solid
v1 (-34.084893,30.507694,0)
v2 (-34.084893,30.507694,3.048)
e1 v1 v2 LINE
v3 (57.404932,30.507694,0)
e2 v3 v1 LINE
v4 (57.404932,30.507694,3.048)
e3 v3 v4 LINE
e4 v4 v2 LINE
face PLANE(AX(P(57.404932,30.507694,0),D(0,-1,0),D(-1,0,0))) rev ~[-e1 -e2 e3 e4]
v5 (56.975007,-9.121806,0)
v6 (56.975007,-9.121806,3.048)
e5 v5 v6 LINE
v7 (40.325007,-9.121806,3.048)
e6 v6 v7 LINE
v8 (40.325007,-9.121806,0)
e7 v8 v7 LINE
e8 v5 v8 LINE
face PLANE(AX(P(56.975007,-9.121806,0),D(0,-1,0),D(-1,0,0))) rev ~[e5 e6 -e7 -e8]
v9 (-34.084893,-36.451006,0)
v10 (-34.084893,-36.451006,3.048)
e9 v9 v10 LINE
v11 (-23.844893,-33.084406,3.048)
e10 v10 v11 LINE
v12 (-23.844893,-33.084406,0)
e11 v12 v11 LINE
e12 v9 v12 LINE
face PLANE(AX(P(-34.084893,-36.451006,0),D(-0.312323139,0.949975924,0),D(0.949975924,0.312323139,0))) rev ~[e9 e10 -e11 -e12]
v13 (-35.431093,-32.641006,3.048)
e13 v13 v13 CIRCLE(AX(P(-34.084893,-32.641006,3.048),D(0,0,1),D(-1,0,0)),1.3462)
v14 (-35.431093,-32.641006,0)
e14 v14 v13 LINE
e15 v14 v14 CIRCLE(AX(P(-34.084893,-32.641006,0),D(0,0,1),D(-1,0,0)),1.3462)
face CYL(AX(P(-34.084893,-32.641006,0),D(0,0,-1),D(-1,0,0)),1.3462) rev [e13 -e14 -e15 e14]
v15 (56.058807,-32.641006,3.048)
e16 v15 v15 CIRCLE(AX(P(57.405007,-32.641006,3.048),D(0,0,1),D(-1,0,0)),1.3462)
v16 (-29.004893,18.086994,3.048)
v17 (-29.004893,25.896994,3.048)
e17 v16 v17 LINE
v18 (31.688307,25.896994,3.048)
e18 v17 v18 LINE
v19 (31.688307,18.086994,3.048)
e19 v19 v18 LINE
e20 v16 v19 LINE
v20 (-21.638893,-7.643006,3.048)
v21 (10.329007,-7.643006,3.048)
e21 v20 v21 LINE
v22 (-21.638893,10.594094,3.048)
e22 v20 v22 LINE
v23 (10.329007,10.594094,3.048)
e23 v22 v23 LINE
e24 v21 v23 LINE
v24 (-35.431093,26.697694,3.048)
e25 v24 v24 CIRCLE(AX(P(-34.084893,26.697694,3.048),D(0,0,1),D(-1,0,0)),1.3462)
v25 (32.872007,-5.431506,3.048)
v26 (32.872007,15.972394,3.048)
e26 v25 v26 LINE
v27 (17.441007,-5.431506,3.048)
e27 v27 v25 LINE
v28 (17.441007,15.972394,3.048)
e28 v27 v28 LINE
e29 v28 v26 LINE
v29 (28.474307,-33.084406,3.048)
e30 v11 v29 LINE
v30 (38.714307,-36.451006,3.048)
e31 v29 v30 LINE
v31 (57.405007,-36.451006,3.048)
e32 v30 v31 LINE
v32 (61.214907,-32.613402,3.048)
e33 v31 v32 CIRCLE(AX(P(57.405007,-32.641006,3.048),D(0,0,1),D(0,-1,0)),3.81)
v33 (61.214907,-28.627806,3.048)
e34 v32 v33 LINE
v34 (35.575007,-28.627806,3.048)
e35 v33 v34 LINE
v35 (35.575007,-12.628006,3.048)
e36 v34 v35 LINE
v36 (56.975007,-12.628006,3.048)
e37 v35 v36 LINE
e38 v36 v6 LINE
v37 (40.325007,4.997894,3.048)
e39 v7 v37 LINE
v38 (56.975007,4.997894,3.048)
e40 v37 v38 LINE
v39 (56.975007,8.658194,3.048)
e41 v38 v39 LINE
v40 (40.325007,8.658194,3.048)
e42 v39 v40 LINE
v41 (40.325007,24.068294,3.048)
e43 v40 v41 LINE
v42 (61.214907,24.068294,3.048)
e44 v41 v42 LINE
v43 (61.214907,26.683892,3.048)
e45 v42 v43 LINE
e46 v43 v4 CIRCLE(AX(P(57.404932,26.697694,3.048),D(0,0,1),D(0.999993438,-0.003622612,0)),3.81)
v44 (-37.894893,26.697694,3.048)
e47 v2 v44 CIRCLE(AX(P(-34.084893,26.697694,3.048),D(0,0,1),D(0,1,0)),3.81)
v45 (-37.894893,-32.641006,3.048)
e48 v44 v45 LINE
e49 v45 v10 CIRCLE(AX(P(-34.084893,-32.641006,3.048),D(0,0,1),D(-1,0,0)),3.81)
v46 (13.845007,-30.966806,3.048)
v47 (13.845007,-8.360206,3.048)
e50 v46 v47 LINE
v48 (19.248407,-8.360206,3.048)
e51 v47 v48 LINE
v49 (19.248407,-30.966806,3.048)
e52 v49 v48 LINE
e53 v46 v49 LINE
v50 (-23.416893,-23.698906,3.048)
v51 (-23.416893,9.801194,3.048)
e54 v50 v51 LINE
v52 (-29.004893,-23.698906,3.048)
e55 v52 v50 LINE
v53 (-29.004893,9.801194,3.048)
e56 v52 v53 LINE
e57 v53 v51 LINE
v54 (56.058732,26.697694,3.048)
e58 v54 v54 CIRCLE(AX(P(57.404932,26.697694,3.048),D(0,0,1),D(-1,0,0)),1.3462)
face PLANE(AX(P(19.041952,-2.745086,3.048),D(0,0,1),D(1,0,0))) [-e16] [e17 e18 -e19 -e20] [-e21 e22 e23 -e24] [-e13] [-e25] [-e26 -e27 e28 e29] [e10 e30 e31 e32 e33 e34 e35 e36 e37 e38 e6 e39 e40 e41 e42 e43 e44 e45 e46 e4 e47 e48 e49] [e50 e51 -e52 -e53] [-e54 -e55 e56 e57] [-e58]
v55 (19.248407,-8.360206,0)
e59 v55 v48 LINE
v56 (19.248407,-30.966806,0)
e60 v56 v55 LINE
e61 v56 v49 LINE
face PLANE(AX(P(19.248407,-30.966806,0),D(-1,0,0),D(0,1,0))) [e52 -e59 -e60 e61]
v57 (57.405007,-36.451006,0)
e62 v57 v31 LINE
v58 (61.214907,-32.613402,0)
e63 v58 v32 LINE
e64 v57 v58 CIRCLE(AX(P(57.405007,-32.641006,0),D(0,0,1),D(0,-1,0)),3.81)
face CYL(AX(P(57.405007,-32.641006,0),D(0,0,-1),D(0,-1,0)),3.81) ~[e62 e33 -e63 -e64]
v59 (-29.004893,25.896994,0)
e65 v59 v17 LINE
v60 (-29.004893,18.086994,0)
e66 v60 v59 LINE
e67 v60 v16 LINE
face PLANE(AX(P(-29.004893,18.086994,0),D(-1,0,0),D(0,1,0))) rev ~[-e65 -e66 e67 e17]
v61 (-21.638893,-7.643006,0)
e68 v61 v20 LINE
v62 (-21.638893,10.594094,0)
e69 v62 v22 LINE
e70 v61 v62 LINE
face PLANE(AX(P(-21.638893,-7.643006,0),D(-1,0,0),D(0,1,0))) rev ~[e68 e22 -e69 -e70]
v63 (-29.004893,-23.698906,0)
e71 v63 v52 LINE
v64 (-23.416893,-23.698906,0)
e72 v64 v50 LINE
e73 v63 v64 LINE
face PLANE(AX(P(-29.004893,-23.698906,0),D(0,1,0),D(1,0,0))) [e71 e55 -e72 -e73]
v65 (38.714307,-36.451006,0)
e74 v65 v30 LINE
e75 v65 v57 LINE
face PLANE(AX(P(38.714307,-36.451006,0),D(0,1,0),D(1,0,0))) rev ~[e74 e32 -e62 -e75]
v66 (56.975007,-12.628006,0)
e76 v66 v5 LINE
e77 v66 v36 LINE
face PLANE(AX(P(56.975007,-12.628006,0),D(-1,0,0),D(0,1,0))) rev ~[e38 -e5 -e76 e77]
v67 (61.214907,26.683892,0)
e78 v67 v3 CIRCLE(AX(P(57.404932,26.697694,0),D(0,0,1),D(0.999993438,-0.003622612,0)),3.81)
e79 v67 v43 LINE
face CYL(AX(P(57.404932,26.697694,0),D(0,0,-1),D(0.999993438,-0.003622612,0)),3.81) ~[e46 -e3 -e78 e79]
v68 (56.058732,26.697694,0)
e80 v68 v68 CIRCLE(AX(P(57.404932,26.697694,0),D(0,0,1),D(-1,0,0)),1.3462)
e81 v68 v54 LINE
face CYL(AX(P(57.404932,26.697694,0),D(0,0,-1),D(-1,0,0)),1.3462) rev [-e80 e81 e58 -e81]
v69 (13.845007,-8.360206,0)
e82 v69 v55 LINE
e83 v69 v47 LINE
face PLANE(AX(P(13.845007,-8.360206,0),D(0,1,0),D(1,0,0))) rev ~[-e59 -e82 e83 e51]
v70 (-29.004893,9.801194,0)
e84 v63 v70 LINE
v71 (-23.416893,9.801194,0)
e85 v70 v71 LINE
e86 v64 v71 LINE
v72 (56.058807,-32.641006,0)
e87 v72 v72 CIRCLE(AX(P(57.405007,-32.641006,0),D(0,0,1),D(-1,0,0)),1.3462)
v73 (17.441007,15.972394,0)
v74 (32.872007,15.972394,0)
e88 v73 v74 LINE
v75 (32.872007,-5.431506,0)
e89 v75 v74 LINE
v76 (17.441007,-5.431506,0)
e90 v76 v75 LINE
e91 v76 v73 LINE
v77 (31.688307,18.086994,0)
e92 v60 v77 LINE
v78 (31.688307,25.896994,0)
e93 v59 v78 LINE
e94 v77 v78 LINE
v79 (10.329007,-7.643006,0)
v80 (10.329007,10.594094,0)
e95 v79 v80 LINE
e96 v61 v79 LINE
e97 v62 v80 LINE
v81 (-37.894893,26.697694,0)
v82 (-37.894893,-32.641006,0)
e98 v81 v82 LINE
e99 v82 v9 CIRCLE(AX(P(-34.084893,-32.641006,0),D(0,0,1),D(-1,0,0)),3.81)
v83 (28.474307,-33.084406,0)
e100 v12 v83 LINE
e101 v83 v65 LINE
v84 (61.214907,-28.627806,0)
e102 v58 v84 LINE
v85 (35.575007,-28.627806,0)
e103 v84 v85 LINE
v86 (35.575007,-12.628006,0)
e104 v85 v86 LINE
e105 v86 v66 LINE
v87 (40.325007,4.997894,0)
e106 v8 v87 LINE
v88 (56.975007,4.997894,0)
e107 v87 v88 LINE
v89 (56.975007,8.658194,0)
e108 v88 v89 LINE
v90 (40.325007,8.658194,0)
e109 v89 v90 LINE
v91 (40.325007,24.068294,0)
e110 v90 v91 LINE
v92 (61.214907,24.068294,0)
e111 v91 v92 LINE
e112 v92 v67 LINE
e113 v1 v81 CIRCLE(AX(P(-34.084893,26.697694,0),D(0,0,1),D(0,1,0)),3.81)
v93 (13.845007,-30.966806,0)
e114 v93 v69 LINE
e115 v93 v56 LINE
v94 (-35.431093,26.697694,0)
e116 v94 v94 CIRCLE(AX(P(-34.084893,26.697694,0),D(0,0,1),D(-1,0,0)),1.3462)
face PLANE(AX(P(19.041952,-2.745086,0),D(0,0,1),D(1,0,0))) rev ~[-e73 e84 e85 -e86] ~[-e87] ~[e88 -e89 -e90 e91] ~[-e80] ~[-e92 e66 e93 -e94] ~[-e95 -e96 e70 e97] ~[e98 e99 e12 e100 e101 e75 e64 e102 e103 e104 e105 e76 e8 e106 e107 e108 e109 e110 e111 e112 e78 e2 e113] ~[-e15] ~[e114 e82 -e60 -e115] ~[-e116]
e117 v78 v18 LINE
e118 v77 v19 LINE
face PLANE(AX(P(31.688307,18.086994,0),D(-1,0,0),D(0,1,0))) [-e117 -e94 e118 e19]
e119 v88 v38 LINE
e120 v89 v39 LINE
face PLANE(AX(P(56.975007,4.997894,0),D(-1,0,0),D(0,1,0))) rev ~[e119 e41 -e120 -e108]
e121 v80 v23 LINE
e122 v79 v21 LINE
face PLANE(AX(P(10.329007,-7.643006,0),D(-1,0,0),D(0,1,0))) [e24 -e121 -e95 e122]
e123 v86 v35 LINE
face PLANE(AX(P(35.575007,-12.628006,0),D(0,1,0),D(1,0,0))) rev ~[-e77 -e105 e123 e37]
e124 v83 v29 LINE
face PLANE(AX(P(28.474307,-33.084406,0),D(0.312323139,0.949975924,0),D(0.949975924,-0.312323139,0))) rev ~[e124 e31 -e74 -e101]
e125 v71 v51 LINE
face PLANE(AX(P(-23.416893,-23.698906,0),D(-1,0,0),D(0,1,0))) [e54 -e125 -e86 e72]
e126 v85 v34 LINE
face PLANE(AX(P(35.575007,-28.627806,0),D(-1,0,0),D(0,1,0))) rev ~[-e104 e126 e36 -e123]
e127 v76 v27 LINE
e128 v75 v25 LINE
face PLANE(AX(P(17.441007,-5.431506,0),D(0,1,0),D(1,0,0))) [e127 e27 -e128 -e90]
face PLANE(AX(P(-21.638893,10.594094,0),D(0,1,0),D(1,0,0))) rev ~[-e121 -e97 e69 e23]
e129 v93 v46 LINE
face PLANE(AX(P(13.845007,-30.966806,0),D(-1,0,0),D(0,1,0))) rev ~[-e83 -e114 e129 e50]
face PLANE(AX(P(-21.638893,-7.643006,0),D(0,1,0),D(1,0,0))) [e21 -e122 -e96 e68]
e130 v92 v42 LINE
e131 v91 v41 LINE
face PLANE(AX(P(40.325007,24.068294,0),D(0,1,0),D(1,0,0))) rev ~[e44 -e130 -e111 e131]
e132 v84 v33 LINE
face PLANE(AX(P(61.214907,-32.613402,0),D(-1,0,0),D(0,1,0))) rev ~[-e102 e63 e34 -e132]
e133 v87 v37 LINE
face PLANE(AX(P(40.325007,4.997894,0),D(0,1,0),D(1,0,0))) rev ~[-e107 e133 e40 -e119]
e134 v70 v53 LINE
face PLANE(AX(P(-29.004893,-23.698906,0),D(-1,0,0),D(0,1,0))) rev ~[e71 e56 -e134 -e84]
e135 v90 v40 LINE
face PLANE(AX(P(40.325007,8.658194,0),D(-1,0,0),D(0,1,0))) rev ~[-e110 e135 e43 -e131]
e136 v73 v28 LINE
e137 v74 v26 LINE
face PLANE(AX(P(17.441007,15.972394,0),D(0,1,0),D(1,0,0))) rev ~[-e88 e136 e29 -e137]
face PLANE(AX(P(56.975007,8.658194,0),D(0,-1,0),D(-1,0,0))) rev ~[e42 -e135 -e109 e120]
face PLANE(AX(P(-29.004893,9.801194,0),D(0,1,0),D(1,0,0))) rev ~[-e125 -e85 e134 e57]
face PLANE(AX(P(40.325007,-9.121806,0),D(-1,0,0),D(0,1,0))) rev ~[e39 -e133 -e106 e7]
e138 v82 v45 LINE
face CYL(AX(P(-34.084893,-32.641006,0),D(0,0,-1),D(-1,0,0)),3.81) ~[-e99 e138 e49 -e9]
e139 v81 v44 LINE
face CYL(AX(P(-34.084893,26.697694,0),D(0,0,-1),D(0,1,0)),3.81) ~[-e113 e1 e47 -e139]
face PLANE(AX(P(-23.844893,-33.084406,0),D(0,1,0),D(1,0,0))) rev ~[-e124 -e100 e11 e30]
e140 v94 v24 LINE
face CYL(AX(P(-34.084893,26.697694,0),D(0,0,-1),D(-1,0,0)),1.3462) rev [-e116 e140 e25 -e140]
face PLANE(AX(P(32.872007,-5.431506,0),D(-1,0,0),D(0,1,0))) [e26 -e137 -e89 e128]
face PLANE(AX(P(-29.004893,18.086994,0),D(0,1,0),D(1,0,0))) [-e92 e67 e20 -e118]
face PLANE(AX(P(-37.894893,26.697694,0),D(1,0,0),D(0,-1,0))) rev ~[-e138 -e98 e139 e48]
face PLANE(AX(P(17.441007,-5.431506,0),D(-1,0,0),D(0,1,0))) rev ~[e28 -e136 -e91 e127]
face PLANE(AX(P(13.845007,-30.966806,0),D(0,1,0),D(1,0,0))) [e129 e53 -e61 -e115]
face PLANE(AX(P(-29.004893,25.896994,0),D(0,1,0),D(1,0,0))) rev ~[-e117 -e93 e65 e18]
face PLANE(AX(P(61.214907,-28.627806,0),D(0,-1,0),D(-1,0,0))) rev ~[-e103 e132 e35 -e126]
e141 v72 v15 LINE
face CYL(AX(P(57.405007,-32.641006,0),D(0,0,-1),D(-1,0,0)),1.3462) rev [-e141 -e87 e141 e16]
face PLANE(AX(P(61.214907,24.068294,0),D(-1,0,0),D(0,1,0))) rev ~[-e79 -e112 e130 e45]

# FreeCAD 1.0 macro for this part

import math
import FreeCAD as App
import Part
import Sketcher
from FreeCAD import Vector
Q = App.Units.Quantity

doc = App.newDocument("Part")
body = doc.addObject("PartDesign::Body", "Body")

# Sketch on XY plane
sketch1 = body.newObject("Sketcher::SketchObject", "Sketch")
sketch1.AttachmentSupport = (doc.getObject("XY_Plane"), [""])
sketch1.MapMode = "FlatFace"
sketch1.addGeometry([
    Part.LineSegment(Vector(40.325007, 24.068294, 0), Vector(61.214907, 24.068294, 0)),  # 0
    Part.LineSegment(Vector(61.214907, 24.068294, 0), Vector(61.214907, 26.683892, 0)),  # 1
    Part.ArcOfCircle(Part.Circle(Vector(57.404932, 26.697694, 0), Vector(0, 0, 1), 3.81), math.radians(-0.207561), math.radians(90)),  # 2
    Part.LineSegment(Vector(57.404932, 30.507694, 0), Vector(-34.084893, 30.507694, 0)),  # 3
    Part.ArcOfCircle(Part.Circle(Vector(-34.084893, 26.697694, 0), Vector(0, 0, 1), 3.81), math.radians(90), math.radians(180)),  # 4
    Part.LineSegment(Vector(-37.894893, 26.697694, 0), Vector(-37.894893, -32.641006, 0)),  # 5
    Part.ArcOfCircle(Part.Circle(Vector(-34.084893, -32.641006, 0), Vector(0, 0, 1), 3.81), math.radians(-180), math.radians(-90)),  # 6
    Part.LineSegment(Vector(-34.084893, -36.451006, 0), Vector(-23.844893, -33.084406, 0)),  # 7
    Part.LineSegment(Vector(-23.844893, -33.084406, 0), Vector(28.474307, -33.084406, 0)),  # 8
    Part.LineSegment(Vector(28.474307, -33.084406, 0), Vector(38.714307, -36.451006, 0)),  # 9
    Part.LineSegment(Vector(38.714307, -36.451006, 0), Vector(57.405007, -36.451006, 0)),  # 10
    Part.ArcOfCircle(Part.Circle(Vector(57.405007, -32.641006, 0), Vector(0, 0, 1), 3.81), math.radians(-90), math.radians(0.415122)),  # 11
    Part.LineSegment(Vector(61.214907, -32.613402, 0), Vector(61.214907, -28.627806, 0)),  # 12
    Part.LineSegment(Vector(61.214907, -28.627806, 0), Vector(35.575007, -28.627806, 0)),  # 13
    Part.LineSegment(Vector(35.575007, -28.627806, 0), Vector(35.575007, -12.628006, 0)),  # 14
    Part.LineSegment(Vector(35.575007, -12.628006, 0), Vector(56.975007, -12.628006, 0)),  # 15
    Part.LineSegment(Vector(56.975007, -12.628006, 0), Vector(56.975007, -9.121806, 0)),  # 16
    Part.LineSegment(Vector(56.975007, -9.121806, 0), Vector(40.325007, -9.121806, 0)),  # 17
    Part.LineSegment(Vector(40.325007, -9.121806, 0), Vector(40.325007, 4.997894, 0)),  # 18
    Part.LineSegment(Vector(40.325007, 4.997894, 0), Vector(56.975007, 4.997894, 0)),  # 19
    Part.LineSegment(Vector(56.975007, 4.997894, 0), Vector(56.975007, 8.658194, 0)),  # 20
    Part.LineSegment(Vector(56.975007, 8.658194, 0), Vector(40.325007, 8.658194, 0)),  # 21
    Part.LineSegment(Vector(40.325007, 8.658194, 0), Vector(40.325007, 24.068294, 0)),  # 22
    Part.Circle(Vector(-34.084893, -32.641006, 0), Vector(0, 0, 1), 1.3462),  # 23
    Part.LineSegment(Vector(-23.416893, -23.698906, 0), Vector(-29.004893, -23.698906, 0)),  # 24
    Part.LineSegment(Vector(-29.004893, -23.698906, 0), Vector(-29.004893, 9.801194, 0)),  # 25
    Part.LineSegment(Vector(-29.004893, 9.801194, 0), Vector(-23.416893, 9.801194, 0)),  # 26
    Part.LineSegment(Vector(-23.416893, 9.801194, 0), Vector(-23.416893, -23.698906, 0)),  # 27
    Part.LineSegment(Vector(19.248407, -30.966806, 0), Vector(13.845007, -30.966806, 0)),  # 28
    Part.LineSegment(Vector(13.845007, -30.966806, 0), Vector(13.845007, -8.360206, 0)),  # 29
    Part.LineSegment(Vector(13.845007, -8.360206, 0), Vector(19.248407, -8.360206, 0)),  # 30
    Part.LineSegment(Vector(19.248407, -8.360206, 0), Vector(19.248407, -30.966806, 0)),  # 31
    Part.Circle(Vector(57.405007, -32.641006, 0), Vector(0, 0, 1), 1.3462),  # 32
    Part.LineSegment(Vector(10.329007, -7.643006, 0), Vector(-21.638893, -7.643006, 0)),  # 33
    Part.LineSegment(Vector(-21.638893, -7.643006, 0), Vector(-21.638893, 10.594094, 0)),  # 34
    Part.LineSegment(Vector(-21.638893, 10.594094, 0), Vector(10.329007, 10.594094, 0)),  # 35
    Part.LineSegment(Vector(10.329007, 10.594094, 0), Vector(10.329007, -7.643006, 0)),  # 36
    Part.Circle(Vector(-34.084893, 26.697694, 0), Vector(0, 0, 1), 1.3462),  # 37
    Part.LineSegment(Vector(31.688307, 18.086994, 0), Vector(-29.004893, 18.086994, 0)),  # 38
    Part.LineSegment(Vector(-29.004893, 18.086994, 0), Vector(-29.004893, 25.896994, 0)),  # 39
    Part.LineSegment(Vector(-29.004893, 25.896994, 0), Vector(31.688307, 25.896994, 0)),  # 40
    Part.LineSegment(Vector(31.688307, 25.896994, 0), Vector(31.688307, 18.086994, 0)),  # 41
    Part.LineSegment(Vector(32.872007, -5.431506, 0), Vector(17.441007, -5.431506, 0)),  # 42
    Part.LineSegment(Vector(17.441007, -5.431506, 0), Vector(17.441007, 15.972394, 0)),  # 43
    Part.LineSegment(Vector(17.441007, 15.972394, 0), Vector(32.872007, 15.972394, 0)),  # 44
    Part.LineSegment(Vector(32.872007, 15.972394, 0), Vector(32.872007, -5.431506, 0)),  # 45
    Part.Circle(Vector(57.404932, 26.697694, 0), Vector(0, 0, 1), 1.3462),  # 46
], False)
sketch1.addConstraint([
    Sketcher.Constraint("Coincident", 0, 2, 1, 1),
    Sketcher.Constraint("Coincident", 1, 2, 2, 1),
    Sketcher.Constraint("Tangent", 2, 2, 3, 1),
    Sketcher.Constraint("Tangent", 3, 2, 4, 1),
    Sketcher.Constraint("Tangent", 4, 2, 5, 1),
    Sketcher.Constraint("Tangent", 5, 2, 6, 1),
    Sketcher.Constraint("Coincident", 6, 2, 7, 1),
    Sketcher.Constraint("Coincident", 7, 2, 8, 1),
    Sketcher.Constraint("Coincident", 8, 2, 9, 1),
    Sketcher.Constraint("Coincident", 9, 2, 10, 1),
    Sketcher.Constraint("Tangent", 10, 2, 11, 1),
    Sketcher.Constraint("Coincident", 11, 2, 12, 1),
    Sketcher.Constraint("Coincident", 12, 2, 13, 1),
    Sketcher.Constraint("Coincident", 13, 2, 14, 1),
    Sketcher.Constraint("Coincident", 14, 2, 15, 1),
    Sketcher.Constraint("Coincident", 15, 2, 16, 1),
    Sketcher.Constraint("Coincident", 16, 2, 17, 1),
    Sketcher.Constraint("Coincident", 17, 2, 18, 1),
    Sketcher.Constraint("Coincident", 18, 2, 19, 1),
    Sketcher.Constraint("Coincident", 19, 2, 20, 1),
    Sketcher.Constraint("Coincident", 20, 2, 21, 1),
    Sketcher.Constraint("Coincident", 21, 2, 22, 1),
    Sketcher.Constraint("Coincident", 22, 2, 0, 1),
    Sketcher.Constraint("Coincident", 24, 2, 25, 1),
    Sketcher.Constraint("Coincident", 25, 2, 26, 1),
    Sketcher.Constraint("Coincident", 26, 2, 27, 1),
    Sketcher.Constraint("Coincident", 27, 2, 24, 1),
    Sketcher.Constraint("Coincident", 28, 2, 29, 1),
    Sketcher.Constraint("Coincident", 29, 2, 30, 1),
    Sketcher.Constraint("Coincident", 30, 2, 31, 1),
    Sketcher.Constraint("Coincident", 31, 2, 28, 1),
    Sketcher.Constraint("Coincident", 33, 2, 34, 1),
    Sketcher.Constraint("Coincident", 34, 2, 35, 1),
    Sketcher.Constraint("Coincident", 35, 2, 36, 1),
    Sketcher.Constraint("Coincident", 36, 2, 33, 1),
    Sketcher.Constraint("Coincident", 38, 2, 39, 1),
    Sketcher.Constraint("Coincident", 39, 2, 40, 1),
    Sketcher.Constraint("Coincident", 40, 2, 41, 1),
    Sketcher.Constraint("Coincident", 41, 2, 38, 1),
    Sketcher.Constraint("Coincident", 42, 2, 43, 1),
    Sketcher.Constraint("Coincident", 43, 2, 44, 1),
    Sketcher.Constraint("Coincident", 44, 2, 45, 1),
    Sketcher.Constraint("Coincident", 45, 2, 42, 1),
    Sketcher.Constraint("Horizontal", 0),
    Sketcher.Constraint("Vertical", 1),
    Sketcher.Constraint("Horizontal", 3),
    Sketcher.Constraint("Vertical", 5),
    Sketcher.Constraint("Horizontal", 8),
    Sketcher.Constraint("Horizontal", 10),
    Sketcher.Constraint("Vertical", 12),
    Sketcher.Constraint("Horizontal", 13),
    Sketcher.Constraint("Vertical", 14),
    Sketcher.Constraint("Horizontal", 15),
    Sketcher.Constraint("Vertical", 16),
    Sketcher.Constraint("Horizontal", 17),
    Sketcher.Constraint("Vertical", 18),
    Sketcher.Constraint("Horizontal", 19),
    Sketcher.Constraint("Vertical", 20),
    Sketcher.Constraint("Horizontal", 21),
    Sketcher.Constraint("Vertical", 22),
    Sketcher.Constraint("Horizontal", 24),
    Sketcher.Constraint("Vertical", 25),
    Sketcher.Constraint("Horizontal", 26),
    Sketcher.Constraint("Vertical", 27),
    Sketcher.Constraint("Horizontal", 28),
    Sketcher.Constraint("Vertical", 29),
    Sketcher.Constraint("Horizontal", 30),
    Sketcher.Constraint("Vertical", 31),
    Sketcher.Constraint("Horizontal", 33),
    Sketcher.Constraint("Vertical", 34),
    Sketcher.Constraint("Horizontal", 35),
    Sketcher.Constraint("Vertical", 36),
    Sketcher.Constraint("Horizontal", 38),
    Sketcher.Constraint("Vertical", 39),
    Sketcher.Constraint("Horizontal", 40),
    Sketcher.Constraint("Vertical", 41),
    Sketcher.Constraint("Horizontal", 42),
    Sketcher.Constraint("Vertical", 43),
    Sketcher.Constraint("Horizontal", 44),
    Sketcher.Constraint("Vertical", 45),
    Sketcher.Constraint("Coincident", 23, 3, 6, 3),
    Sketcher.Constraint("Coincident", 32, 3, 11, 3),
    Sketcher.Constraint("Coincident", 37, 3, 4, 3),
    Sketcher.Constraint("Coincident", 46, 3, 2, 3),
    Sketcher.Constraint("Equal", 2, 4),
    Sketcher.Constraint("Equal", 4, 6),
    Sketcher.Constraint("Equal", 6, 11),
    Sketcher.Constraint("Equal", 23, 32),
    Sketcher.Constraint("Equal", 32, 37),
    Sketcher.Constraint("Equal", 37, 46),
    Sketcher.Constraint("Horizontal", 6, 3, 11, 3),
    Sketcher.Constraint("Vertical", 3, 2, 6, 2),
    Sketcher.Constraint("Vertical", 1, 2, 11, 2),
    Sketcher.Constraint("Vertical", 16, 2, 19, 2),
    Sketcher.Constraint("Vertical", 18, 2, 21, 2),
    Sketcher.Constraint("Vertical", 25, 2, 38, 2),
    Sketcher.Constraint("Equal", 7, 9),
    Sketcher.Constraint("Radius", 2, Q("0.15 in")),
    Sketcher.Constraint("Diameter", 23, Q("0.106 in")),
    Sketcher.Constraint("DistanceX", 24, 2, 24, 1, Q("0.22 in")),
    Sketcher.Constraint("DistanceY", 16, 2, 20, 2, Q("0.7 in")),
    Sketcher.Constraint("DistanceX", 6, 3, 24, 2, Q("0.2 in")),
    Sketcher.Constraint("DistanceX", 27, 2, 33, 2, Q("0.07 in")),
    Sketcher.Constraint("DistanceX", 36, 2, 42, 2, Q("0.28 in")),
    Sketcher.Constraint("DistanceX", 8, 2, 11, 2, Q("1.289 in")),
    Sketcher.Constraint("DistanceY", 11, 3, 12, 2, Q("0.158 in")),
    Sketcher.Constraint("DistanceY", 28, 2, 14, 2, Q("0.722 in")),
    Sketcher.Constraint("DistanceY", 34, 2, 37, 3, Q("0.634 in")),
    Sketcher.Constraint("DistanceX", 0, 1, 0, 2, 20.8899),
    Sketcher.Constraint("DistanceX", 8, 1, 8, 2, 52.3192),
    Sketcher.Constraint("DistanceX", 10, 1, 10, 2, 18.6907),
    Sketcher.Constraint("DistanceX", 13, 2, 13, 1, 25.6399),
    Sketcher.Constraint("DistanceX", 15, 1, 15, 2, 21.4),
    Sketcher.Constraint("DistanceX", 28, 2, 28, 1, 5.4034),
    Sketcher.Constraint("DistanceX", 33, 2, 33, 1, 31.9679),
    Sketcher.Constraint("DistanceX", 38, 2, 38, 1, 60.6932),
    Sketcher.Constraint("DistanceX", 42, 2, 42, 1, 15.431),
    Sketcher.Constraint("DistanceY", 5, 2, 5, 1, 59.3387),
    Sketcher.Constraint("DistanceY", 14, 1, 14, 2, 15.9998),
    Sketcher.Constraint("DistanceY", 16, 1, 16, 2, 3.5062),
    Sketcher.Constraint("DistanceY", 18, 1, 18, 2, 14.1197),
    Sketcher.Constraint("DistanceY", 22, 1, 22, 2, 15.4101),
    Sketcher.Constraint("DistanceY", 25, 1, 25, 2, 33.5001),
    Sketcher.Constraint("DistanceY", 29, 1, 29, 2, 22.6066),
    Sketcher.Constraint("DistanceY", 34, 1, 34, 2, 18.2371),
    Sketcher.Constraint("DistanceY", 39, 1, 39, 2, 7.81),
    Sketcher.Constraint("DistanceY", 43, 1, 43, 2, 21.4039),
    Sketcher.Constraint("DistanceY", 11, 2, -1, 1, 32.613402),
    Sketcher.Constraint("DistanceY", 7, 2, 6, 3, 0.4434),
    Sketcher.Constraint("DistanceY", 6, 3, 24, 2, 8.9421),
    Sketcher.Constraint("DistanceX", 28, 2, 8, 2, 14.6293),
    Sketcher.Constraint("DistanceY", 25, 2, 38, 2, 8.2858),
    Sketcher.Constraint("DistanceY", 30, 2, 42, 2, 2.9287),
    Sketcher.Constraint("DistanceX", 3, 2, 3, 1, 91.489825),
    Sketcher.Constraint("DistanceY", 1, 1, 1, 2, 2.615598),
    Sketcher.Constraint("DistanceX", -1, 1, 2, 3, 57.404932),
])
pad1 = body.newObject("PartDesign::Pad", "Pad")
pad1.Profile = sketch1
pad1.Length = Q("0.12 in")

doc.recompute()
